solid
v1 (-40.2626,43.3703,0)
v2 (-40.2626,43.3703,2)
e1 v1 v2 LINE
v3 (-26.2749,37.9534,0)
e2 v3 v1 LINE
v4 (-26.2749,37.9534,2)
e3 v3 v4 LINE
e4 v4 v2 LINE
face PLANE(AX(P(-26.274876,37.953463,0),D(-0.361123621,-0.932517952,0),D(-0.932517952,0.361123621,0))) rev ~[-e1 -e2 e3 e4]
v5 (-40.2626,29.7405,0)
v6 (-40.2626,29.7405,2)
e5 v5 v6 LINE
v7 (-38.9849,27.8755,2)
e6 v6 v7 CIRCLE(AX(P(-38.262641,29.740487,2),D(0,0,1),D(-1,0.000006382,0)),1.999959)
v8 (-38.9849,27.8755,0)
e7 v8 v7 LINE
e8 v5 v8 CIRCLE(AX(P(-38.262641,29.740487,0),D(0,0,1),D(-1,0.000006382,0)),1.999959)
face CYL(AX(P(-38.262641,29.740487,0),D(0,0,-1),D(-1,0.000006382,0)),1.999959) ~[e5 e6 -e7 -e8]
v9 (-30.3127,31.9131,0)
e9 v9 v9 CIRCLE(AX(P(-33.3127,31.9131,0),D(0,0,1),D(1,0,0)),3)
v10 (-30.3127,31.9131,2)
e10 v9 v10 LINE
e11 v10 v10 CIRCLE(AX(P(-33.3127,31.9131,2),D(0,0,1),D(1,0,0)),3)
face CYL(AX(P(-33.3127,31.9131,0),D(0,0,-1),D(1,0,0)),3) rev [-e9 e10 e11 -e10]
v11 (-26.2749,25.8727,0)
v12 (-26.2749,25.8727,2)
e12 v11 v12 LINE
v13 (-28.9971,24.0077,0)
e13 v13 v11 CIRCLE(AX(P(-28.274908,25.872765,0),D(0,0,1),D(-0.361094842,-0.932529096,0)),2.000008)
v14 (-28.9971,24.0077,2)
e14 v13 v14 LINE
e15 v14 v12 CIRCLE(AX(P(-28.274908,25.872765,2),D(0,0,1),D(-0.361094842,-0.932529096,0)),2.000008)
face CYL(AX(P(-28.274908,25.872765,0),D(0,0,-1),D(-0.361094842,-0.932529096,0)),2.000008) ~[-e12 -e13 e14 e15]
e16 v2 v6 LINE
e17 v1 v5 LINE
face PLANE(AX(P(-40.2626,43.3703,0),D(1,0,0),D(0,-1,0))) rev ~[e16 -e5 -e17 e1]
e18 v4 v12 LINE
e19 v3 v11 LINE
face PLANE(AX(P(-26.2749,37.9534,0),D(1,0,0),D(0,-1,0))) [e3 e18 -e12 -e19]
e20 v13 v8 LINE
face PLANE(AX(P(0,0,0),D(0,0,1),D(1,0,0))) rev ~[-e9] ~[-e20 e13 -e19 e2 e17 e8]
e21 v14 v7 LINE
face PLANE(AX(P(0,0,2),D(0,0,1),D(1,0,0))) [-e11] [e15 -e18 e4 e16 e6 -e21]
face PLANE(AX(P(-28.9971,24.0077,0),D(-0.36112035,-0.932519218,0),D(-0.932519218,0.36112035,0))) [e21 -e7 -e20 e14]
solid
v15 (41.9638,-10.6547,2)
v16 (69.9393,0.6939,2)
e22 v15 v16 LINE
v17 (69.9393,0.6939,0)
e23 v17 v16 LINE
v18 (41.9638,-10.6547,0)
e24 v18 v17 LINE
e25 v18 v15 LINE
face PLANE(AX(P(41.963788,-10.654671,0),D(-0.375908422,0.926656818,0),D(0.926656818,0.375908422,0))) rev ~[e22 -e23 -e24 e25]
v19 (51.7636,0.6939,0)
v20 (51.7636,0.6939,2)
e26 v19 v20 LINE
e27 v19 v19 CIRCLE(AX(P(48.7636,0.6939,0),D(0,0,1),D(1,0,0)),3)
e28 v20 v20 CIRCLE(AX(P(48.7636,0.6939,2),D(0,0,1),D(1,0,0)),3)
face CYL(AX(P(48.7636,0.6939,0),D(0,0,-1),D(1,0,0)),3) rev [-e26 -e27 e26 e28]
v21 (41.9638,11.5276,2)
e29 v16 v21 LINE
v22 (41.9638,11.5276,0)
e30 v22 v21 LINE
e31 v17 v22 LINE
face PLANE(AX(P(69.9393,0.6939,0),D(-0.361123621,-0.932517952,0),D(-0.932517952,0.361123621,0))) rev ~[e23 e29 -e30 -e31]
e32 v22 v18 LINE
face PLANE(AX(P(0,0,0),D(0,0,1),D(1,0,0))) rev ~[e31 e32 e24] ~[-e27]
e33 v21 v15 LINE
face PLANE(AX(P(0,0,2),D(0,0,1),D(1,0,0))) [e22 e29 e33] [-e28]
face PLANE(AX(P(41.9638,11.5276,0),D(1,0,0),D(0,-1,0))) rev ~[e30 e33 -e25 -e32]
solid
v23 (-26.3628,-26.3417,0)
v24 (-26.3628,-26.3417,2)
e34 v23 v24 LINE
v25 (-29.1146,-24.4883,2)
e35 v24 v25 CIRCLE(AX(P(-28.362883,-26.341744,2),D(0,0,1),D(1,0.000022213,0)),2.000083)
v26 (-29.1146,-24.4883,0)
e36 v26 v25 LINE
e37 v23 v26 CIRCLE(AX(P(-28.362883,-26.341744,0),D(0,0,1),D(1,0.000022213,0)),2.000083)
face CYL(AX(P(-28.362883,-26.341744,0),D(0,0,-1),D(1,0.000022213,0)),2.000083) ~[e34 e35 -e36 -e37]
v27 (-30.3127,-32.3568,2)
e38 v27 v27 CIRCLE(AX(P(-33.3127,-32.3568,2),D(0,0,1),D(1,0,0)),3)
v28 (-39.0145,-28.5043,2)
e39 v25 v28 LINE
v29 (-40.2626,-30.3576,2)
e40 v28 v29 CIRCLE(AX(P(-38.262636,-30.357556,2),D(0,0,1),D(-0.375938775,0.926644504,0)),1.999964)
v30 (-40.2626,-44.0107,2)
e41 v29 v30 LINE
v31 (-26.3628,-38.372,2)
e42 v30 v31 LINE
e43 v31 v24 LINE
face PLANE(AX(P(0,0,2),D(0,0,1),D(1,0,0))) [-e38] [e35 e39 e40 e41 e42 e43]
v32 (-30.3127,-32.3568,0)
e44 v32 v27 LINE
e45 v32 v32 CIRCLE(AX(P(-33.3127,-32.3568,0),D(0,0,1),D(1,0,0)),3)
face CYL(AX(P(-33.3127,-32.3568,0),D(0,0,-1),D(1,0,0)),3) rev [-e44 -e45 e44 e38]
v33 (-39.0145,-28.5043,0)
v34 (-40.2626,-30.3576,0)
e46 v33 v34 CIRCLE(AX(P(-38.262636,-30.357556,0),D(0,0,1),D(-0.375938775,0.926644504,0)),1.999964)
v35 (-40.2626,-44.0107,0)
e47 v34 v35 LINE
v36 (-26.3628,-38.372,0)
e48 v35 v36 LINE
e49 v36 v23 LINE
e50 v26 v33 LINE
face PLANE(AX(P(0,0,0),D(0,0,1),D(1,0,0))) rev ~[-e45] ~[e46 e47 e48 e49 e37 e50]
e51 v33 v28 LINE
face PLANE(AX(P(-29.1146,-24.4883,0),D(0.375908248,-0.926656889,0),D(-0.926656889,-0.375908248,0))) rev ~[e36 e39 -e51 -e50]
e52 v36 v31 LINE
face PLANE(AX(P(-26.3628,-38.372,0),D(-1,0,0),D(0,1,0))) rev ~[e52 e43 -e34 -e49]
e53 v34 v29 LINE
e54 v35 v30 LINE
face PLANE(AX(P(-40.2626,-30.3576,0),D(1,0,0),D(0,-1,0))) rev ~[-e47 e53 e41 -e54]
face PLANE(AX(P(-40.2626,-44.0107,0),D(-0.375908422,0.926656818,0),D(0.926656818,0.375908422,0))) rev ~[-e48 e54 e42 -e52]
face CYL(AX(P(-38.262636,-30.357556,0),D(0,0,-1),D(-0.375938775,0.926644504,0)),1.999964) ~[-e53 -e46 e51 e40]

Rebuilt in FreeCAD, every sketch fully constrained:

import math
import FreeCAD as App
import Part
import Sketcher
Q = App.Units.Quantity


def add_polygon(sketch, points):
    """Adds a closed chain of lines whose ends are joined by coincident constraints."""
    first, n = sketch.GeometryCount, len(points)
    for a, b in zip(points, points[1:] + points[:1]):
        sketch.addGeometry(Part.LineSegment(App.Vector(*a, 0), App.Vector(*b, 0)), False)
    for i in range(n):
        sketch.addConstraint(Sketcher.Constraint("Coincident", first + i, 2, first + (i + 1) % n, 1))

doc = App.newDocument("Part")
body = doc.addObject("PartDesign::Body", "Body")
body.AllowCompound = True

sketch1 = body.newObject("Sketcher::SketchObject", "Sketch")
sketch1.AttachmentSupport = (doc.getObject("XY_Plane"), [""])
sketch1.MapMode = "FlatFace"
add_polygon(sketch1, [(41.963788, -10.654671), (69.9393, 0.6939), (41.9638, 11.5276)])
sketch1.addGeometry(Part.Circle(App.Vector(48.7636, 0.6939, 0), App.Vector(0, 0, 1), 3), False)
sketch1.addGeometry(Part.LineSegment(App.Vector(-26.2749, 25.8727, 0), App.Vector(-26.2749, 37.9534, 0)), False)
sketch1.addGeometry(Part.LineSegment(App.Vector(-26.274876, 37.953463, 0), App.Vector(-40.2626, 43.3703, 0)), False)
sketch1.addGeometry(Part.LineSegment(App.Vector(-40.2626, 43.3703, 0), App.Vector(-40.2626, 29.7405, 0)), False)
sketch1.addGeometry(Part.ArcOfCircle(Part.Circle(App.Vector(-38.2626, 29.7405, 0), App.Vector(0, 0, 1), 2), math.radians(180), math.radians(248.829002)), False)
sketch1.addGeometry(Part.LineSegment(App.Vector(-38.9849, 27.8755, 0), App.Vector(-28.9971, 24.0077, 0)), False)
sketch1.addGeometry(Part.ArcOfCircle(Part.Circle(App.Vector(-28.2749, 25.8727, 0), App.Vector(0, 0, 1), 1.999949), math.radians(-111.168327), math.radians(0)), False)
sketch1.addGeometry(Part.Circle(App.Vector(-33.3127, 31.9131, 0), App.Vector(0, 0, 1), 3), False)
sketch1.addGeometry(Part.LineSegment(App.Vector(-40.2626, -44.0107, 0), App.Vector(-26.362767, -38.372081, 0)), False)
sketch1.addGeometry(Part.LineSegment(App.Vector(-26.3628, -38.372, 0), App.Vector(-26.3628, -26.3417, 0)), False)
sketch1.addGeometry(Part.ArcOfCircle(Part.Circle(App.Vector(-28.3628, -26.3417, 0), App.Vector(0, 0, 1), 2), math.radians(0), math.radians(112.079093)), False)
sketch1.addGeometry(Part.LineSegment(App.Vector(-29.1146, -24.4883, 0), App.Vector(-39.0145, -28.5043, 0)), False)
sketch1.addGeometry(Part.ArcOfCircle(Part.Circle(App.Vector(-38.2626, -30.3576, 0), App.Vector(0, 0, 1), 2.000019), math.radians(112.082824), math.radians(180)), False)
sketch1.addGeometry(Part.LineSegment(App.Vector(-40.2626, -30.3576, 0), App.Vector(-40.2626, -44.0107, 0)), False)
sketch1.addGeometry(Part.Circle(App.Vector(-33.3127, -32.3568, 0), App.Vector(0, 0, 1), 3), False)
sketch1.addConstraint(Sketcher.Constraint("Coincident", 4, 2, 5, 1))
sketch1.addConstraint(Sketcher.Constraint("Coincident", 5, 2, 6, 1))
sketch1.addConstraint(Sketcher.Constraint("Tangent", 6, 2, 7, 1))
sketch1.addConstraint(Sketcher.Constraint("Tangent", 7, 2, 8, 1))
sketch1.addConstraint(Sketcher.Constraint("Tangent", 8, 2, 9, 1))
sketch1.addConstraint(Sketcher.Constraint("Tangent", 9, 2, 4, 1))
sketch1.addConstraint(Sketcher.Constraint("Coincident", 11, 2, 12, 1))
sketch1.addConstraint(Sketcher.Constraint("Tangent", 12, 2, 13, 1))
sketch1.addConstraint(Sketcher.Constraint("Tangent", 13, 2, 14, 1))
sketch1.addConstraint(Sketcher.Constraint("Tangent", 14, 2, 15, 1))
sketch1.addConstraint(Sketcher.Constraint("Tangent", 15, 2, 16, 1))
sketch1.addConstraint(Sketcher.Constraint("Coincident", 16, 2, 11, 1))
sketch1.addConstraint(Sketcher.Constraint("Vertical", 2))
sketch1.addConstraint(Sketcher.Constraint("Vertical", 4))
sketch1.addConstraint(Sketcher.Constraint("Vertical", 6))
sketch1.addConstraint(Sketcher.Constraint("Vertical", 12))
sketch1.addConstraint(Sketcher.Constraint("Vertical", 16))
sketch1.addConstraint(Sketcher.Constraint("Equal", 7, 9))
sketch1.addConstraint(Sketcher.Constraint("Equal", 3, 10))
sketch1.addConstraint(Sketcher.Constraint("Equal", 9, 13))
sketch1.addConstraint(Sketcher.Constraint("Equal", 13, 15))
sketch1.addConstraint(Sketcher.Constraint("Equal", 10, 17))
sketch1.addConstraint(Sketcher.Constraint("Parallel", 1, 5))
sketch1.addConstraint(Sketcher.Constraint("Parallel", 5, 8))
sketch1.addConstraint(Sketcher.Constraint("Parallel", 0, 11))
sketch1.addConstraint(Sketcher.Constraint("Parallel", 11, 14))
sketch1.addConstraint(Sketcher.Constraint("Horizontal", 3, 3, 0, 2))
sketch1.addConstraint(Sketcher.Constraint("Vertical", 7, 3, 15, 3))
sketch1.addConstraint(Sketcher.Constraint("Vertical", 10, 3, 17, 3))
sketch1.addConstraint(Sketcher.Constraint("Equal", 5, 11))
sketch1.addConstraint(Sketcher.Constraint("Diameter", 3, 6.0))
sketch1.addConstraint(Sketcher.Constraint("Radius", 7, 2.0))
sketch1.addConstraint(Sketcher.Constraint("Distance", 1, 30.0))
sketch1.addConstraint(Sketcher.Constraint("Distance", 5, 15.0))
sketch1.addConstraint(Sketcher.Constraint("Angle", 0, Q("22.0805 deg")))
sketch1.addConstraint(Sketcher.Constraint("Angle", 1, Q("158.8308 deg")))
sketch1.addConstraint(Sketcher.Constraint("DistanceY", 16, 2, 16, 1, 13.653))
sketch1.addConstraint(Sketcher.Constraint("DistanceX", 7, 3, 10, 3, 4.95))
sketch1.addConstraint(Sketcher.Constraint("DistanceY", 17, 3, 10, 3, 64.27))
sketch1.addConstraint(Sketcher.Constraint("DistanceY", 4, 1, 4, 2, 12.0807))
sketch1.addConstraint(Sketcher.Constraint("DistanceY", -1, 1, 3, 3, 0.694))
sketch1.addConstraint(Sketcher.Constraint("DistanceX", 9, 3, -1, 1, 28.275))
sketch1.addConstraint(Sketcher.Constraint("DistanceY", -1, 1, 10, 3, 31.913))
sketch1.addConstraint(Sketcher.Constraint("DistanceY", 11, 2, -1, 1, 38.372))
sketch1.addConstraint(Sketcher.Constraint("DistanceY", 15, 3, 7, 3, 60.098))
sketch1.addConstraint(Sketcher.Constraint("DistanceX", 13, 3, 0, 2, 98.302))
sketch1.addConstraint(Sketcher.Constraint("DistanceX", -1, 1, 3, 3, 48.7636))
pad1 = body.newObject("PartDesign::Pad", "Pad")
pad1.Profile = sketch1
pad1.Length = 2

doc.recompute()
